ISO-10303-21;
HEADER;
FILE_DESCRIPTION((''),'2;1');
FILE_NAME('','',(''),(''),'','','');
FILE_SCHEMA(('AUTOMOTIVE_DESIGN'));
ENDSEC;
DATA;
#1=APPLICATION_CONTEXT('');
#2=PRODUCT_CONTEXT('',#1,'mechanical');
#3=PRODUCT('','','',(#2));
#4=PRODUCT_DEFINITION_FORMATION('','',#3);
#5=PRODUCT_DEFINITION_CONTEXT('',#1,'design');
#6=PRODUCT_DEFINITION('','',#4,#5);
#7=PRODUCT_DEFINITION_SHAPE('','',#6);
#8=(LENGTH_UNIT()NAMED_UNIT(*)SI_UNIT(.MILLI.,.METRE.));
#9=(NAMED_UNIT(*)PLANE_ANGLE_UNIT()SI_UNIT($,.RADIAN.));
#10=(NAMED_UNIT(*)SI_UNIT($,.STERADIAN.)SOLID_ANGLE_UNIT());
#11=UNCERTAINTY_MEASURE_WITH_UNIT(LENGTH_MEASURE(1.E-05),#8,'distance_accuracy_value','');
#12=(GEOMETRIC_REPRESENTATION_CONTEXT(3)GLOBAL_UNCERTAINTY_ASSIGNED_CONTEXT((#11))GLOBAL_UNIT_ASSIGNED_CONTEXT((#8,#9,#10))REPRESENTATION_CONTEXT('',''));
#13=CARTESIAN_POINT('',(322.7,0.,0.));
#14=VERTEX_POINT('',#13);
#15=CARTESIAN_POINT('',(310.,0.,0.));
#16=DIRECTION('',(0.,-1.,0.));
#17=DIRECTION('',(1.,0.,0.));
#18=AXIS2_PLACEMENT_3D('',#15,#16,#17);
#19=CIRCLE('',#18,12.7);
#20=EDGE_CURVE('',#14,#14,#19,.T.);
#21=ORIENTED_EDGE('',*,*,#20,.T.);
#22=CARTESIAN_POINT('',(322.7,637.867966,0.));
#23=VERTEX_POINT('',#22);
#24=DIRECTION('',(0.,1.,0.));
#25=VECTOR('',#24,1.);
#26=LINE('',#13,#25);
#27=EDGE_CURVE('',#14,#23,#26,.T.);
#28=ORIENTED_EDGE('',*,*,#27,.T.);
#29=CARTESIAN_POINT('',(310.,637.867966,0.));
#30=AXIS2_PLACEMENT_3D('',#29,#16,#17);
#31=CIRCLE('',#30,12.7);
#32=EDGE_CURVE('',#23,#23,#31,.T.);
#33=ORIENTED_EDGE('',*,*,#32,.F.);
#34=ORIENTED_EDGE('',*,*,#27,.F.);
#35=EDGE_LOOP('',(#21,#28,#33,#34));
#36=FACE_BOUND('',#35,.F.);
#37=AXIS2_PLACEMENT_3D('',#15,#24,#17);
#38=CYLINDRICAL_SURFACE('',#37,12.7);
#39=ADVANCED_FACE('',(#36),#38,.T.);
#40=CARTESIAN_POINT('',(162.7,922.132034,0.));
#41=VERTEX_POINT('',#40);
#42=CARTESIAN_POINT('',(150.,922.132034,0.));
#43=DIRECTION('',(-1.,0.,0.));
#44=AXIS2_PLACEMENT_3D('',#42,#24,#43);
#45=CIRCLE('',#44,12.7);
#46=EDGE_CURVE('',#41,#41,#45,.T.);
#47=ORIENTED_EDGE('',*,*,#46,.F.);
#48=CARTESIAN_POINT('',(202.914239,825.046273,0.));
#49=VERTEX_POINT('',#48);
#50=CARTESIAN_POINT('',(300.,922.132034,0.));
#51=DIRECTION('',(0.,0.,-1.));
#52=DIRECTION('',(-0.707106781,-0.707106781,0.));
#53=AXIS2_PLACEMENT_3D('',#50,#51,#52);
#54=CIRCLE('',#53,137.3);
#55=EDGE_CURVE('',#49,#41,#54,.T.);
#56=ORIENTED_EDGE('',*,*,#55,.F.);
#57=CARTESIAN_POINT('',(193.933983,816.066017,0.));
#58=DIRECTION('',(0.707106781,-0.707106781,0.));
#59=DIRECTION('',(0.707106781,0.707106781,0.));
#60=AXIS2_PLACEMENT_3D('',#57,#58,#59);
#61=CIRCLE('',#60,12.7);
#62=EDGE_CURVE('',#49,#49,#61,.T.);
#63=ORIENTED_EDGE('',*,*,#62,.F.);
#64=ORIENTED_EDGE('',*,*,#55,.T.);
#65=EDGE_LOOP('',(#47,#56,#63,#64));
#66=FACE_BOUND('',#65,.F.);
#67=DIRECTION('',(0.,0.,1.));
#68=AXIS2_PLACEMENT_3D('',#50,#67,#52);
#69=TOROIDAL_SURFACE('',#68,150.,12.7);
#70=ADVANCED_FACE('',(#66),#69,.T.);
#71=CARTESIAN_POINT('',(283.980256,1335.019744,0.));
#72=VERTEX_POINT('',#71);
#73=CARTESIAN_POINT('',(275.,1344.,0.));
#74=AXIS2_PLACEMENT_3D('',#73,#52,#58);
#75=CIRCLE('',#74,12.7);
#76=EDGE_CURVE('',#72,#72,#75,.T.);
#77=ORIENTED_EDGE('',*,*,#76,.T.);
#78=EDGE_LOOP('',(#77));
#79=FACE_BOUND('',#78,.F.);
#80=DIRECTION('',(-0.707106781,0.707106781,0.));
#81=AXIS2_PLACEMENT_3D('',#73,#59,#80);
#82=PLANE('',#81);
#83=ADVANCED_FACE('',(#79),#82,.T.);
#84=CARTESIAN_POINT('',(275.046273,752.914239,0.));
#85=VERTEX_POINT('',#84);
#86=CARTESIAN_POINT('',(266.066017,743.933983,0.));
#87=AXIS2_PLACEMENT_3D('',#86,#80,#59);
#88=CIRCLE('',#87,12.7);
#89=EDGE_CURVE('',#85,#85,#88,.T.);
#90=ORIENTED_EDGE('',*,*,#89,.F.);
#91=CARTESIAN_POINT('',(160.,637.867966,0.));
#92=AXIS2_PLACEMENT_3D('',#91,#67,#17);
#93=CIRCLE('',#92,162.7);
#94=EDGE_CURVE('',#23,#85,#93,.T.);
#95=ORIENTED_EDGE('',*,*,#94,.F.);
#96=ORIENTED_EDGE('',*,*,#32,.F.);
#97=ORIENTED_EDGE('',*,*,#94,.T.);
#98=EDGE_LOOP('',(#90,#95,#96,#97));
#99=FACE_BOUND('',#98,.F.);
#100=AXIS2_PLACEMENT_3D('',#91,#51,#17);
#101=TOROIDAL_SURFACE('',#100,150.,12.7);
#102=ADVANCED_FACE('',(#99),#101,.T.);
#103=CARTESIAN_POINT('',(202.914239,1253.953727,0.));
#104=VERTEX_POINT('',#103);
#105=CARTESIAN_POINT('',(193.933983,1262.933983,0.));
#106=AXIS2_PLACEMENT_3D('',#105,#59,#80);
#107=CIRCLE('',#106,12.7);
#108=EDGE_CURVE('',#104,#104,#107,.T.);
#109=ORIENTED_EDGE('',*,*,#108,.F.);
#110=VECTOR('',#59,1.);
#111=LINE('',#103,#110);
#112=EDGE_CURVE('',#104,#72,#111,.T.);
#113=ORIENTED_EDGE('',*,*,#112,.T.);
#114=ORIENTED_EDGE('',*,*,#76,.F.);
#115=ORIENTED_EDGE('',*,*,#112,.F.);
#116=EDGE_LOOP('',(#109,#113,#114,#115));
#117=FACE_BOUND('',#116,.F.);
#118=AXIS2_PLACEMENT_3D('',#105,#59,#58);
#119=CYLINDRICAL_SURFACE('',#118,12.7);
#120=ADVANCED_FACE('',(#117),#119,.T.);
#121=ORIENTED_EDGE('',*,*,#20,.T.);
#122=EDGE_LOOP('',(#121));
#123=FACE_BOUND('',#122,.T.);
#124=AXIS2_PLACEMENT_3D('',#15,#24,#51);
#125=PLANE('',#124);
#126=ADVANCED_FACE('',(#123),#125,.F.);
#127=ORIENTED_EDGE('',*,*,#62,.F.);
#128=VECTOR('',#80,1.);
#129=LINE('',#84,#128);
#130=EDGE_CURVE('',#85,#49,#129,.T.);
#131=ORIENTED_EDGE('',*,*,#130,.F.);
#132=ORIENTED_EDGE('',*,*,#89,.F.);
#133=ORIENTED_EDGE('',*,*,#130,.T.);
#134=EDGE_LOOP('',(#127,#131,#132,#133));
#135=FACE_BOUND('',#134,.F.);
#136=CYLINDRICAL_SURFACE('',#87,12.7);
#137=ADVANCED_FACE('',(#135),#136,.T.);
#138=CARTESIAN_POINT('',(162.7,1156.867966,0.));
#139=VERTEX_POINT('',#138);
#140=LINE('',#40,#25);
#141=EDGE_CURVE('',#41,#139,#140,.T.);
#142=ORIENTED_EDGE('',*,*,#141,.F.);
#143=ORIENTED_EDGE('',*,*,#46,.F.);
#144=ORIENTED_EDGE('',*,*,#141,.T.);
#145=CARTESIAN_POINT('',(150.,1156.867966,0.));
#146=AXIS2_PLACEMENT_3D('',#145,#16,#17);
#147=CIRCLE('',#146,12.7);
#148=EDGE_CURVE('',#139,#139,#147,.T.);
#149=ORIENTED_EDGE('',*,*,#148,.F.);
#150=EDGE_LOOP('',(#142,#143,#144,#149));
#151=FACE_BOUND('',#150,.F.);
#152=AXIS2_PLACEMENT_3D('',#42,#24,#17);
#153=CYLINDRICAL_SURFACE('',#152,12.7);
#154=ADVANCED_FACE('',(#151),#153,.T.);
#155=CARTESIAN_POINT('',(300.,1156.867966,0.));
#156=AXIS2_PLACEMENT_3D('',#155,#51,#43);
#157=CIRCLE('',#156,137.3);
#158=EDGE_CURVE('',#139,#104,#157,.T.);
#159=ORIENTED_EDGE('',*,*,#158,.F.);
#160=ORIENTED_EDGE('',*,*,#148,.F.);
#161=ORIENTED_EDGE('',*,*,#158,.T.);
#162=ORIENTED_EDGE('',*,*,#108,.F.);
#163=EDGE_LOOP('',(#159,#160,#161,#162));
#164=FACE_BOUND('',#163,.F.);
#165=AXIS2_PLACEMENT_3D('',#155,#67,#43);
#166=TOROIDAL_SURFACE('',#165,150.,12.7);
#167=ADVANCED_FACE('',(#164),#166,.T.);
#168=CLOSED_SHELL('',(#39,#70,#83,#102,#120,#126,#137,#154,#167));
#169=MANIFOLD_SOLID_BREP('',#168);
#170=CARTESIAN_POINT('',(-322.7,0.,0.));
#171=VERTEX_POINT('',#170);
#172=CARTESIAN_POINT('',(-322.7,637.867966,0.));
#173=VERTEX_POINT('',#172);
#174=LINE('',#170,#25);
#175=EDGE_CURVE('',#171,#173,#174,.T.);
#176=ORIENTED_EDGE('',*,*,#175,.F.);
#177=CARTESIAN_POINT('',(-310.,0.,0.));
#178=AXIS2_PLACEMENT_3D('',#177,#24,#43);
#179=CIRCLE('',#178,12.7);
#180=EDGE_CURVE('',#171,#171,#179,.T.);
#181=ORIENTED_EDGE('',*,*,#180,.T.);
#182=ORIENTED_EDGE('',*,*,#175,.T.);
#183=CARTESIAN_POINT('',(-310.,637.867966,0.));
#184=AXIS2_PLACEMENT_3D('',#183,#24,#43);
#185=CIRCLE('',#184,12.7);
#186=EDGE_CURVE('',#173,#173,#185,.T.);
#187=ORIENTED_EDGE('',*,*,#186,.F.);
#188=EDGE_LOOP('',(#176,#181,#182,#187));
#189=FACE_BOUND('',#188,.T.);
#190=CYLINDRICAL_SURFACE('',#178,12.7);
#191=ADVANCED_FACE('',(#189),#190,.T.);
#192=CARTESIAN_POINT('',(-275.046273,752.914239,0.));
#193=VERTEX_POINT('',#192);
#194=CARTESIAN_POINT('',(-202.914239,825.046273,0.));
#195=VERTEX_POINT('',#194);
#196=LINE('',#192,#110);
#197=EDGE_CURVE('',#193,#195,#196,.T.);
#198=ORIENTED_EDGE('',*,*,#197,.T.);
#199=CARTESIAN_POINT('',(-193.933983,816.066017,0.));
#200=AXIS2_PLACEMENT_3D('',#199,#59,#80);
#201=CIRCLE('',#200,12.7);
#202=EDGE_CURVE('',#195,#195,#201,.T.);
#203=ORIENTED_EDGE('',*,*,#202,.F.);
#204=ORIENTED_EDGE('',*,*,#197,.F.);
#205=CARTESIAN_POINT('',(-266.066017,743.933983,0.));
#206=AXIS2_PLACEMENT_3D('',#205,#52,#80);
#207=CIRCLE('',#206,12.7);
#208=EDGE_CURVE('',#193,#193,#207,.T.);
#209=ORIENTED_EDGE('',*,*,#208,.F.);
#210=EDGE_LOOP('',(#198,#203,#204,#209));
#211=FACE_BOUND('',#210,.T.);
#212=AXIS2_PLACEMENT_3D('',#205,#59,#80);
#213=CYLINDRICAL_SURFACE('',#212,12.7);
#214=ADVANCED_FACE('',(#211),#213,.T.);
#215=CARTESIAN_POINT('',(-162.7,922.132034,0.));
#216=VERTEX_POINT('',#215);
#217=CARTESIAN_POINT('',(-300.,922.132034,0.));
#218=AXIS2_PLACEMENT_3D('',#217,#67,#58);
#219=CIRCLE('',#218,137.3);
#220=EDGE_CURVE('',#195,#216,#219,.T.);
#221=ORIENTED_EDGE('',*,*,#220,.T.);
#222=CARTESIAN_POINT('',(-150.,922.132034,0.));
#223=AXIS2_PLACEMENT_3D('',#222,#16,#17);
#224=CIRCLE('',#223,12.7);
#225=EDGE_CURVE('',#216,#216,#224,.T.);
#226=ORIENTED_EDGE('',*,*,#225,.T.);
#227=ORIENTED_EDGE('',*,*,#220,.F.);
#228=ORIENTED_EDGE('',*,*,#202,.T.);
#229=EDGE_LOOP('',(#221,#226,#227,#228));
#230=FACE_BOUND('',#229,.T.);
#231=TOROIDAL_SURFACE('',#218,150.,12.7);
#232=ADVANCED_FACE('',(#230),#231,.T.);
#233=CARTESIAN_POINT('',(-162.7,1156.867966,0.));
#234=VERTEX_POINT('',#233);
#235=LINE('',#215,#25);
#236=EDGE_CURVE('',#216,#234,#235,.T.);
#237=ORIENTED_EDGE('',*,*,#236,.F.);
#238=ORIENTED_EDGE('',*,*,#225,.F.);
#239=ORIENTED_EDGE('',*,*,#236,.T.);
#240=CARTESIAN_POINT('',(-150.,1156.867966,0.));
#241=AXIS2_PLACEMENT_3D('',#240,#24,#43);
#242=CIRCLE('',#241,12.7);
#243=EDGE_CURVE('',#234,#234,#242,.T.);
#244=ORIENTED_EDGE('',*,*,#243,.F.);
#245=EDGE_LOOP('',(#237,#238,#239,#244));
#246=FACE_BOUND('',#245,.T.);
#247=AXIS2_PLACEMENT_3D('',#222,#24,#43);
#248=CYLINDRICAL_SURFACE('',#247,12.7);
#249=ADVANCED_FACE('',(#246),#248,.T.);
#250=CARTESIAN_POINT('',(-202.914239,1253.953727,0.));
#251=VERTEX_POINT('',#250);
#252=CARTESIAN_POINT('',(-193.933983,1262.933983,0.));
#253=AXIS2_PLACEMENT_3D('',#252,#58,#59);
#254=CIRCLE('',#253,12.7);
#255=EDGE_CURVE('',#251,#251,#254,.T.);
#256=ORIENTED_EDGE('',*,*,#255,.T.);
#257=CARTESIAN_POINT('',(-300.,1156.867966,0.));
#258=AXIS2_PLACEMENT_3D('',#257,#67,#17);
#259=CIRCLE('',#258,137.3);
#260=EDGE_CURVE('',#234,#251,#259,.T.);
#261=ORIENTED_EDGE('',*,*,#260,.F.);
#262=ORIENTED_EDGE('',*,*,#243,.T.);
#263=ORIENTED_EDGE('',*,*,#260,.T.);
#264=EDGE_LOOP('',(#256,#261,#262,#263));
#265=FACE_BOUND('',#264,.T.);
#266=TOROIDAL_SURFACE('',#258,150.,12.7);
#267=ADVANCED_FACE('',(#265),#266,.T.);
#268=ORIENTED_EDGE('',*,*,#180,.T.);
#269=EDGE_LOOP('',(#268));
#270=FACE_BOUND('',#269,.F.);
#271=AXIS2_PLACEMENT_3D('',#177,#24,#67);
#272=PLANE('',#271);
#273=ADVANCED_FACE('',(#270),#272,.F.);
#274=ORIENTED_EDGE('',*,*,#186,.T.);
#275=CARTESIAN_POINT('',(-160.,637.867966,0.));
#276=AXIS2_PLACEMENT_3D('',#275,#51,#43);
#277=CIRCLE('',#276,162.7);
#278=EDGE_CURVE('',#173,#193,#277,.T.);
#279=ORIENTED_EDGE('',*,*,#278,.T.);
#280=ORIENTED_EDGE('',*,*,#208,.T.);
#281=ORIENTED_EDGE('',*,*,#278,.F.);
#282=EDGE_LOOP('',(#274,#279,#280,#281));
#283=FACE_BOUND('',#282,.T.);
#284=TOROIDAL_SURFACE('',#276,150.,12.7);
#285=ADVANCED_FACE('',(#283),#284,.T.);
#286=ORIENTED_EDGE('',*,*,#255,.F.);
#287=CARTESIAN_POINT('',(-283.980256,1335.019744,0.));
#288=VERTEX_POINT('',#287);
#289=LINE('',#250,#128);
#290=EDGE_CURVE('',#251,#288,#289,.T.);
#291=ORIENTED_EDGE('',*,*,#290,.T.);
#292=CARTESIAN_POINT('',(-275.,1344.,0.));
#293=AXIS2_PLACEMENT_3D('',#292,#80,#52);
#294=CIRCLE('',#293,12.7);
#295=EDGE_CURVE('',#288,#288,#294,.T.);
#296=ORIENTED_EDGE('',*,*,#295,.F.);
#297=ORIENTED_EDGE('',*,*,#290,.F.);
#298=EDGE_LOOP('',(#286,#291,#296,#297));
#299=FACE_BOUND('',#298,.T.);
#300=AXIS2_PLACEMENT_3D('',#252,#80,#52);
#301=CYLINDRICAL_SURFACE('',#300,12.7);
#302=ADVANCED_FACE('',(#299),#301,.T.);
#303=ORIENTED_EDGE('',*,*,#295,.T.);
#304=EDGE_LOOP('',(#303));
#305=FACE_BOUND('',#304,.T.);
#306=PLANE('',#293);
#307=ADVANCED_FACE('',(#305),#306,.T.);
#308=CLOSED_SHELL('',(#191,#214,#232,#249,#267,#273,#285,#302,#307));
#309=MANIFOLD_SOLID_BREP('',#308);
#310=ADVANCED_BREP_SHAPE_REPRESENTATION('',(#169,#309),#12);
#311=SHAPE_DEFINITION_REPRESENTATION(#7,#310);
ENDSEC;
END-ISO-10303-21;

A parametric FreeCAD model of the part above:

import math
import FreeCAD as App
import Part
import Sketcher
from FreeCAD import Vector
Q = App.Units.Quantity

doc = App.newDocument("Part")
body = doc.addObject("PartDesign::Body", "Body")

# Sketch on XZ plane
sketch1 = doc.addObject("Sketcher::SketchObject", "Sketch")
body.addObject(sketch1)
sketch1.AttachmentSupport = (doc.XZ_Plane, [""])
sketch1.MapMode = "FlatFace"
sketch1.addGeometry(Part.Circle(Vector(-310, 0, 0), Vector(0, 0, 1), 13), False)
sketch1.addConstraint([
    Sketcher.Constraint("PointOnObject", 0, 3, -1),
    Sketcher.Constraint("Diameter", 0, Q("25.4 mm")),
    Sketcher.Constraint("DistanceX", 0, 3, -1, 1, Q("310 mm")),
])

# Sketch on XY plane
sketch2 = doc.addObject("Sketcher::SketchObject", "Sketch001")
body.addObject(sketch2)
sketch2.AttachmentSupport = (doc.XY_Plane, [""])
sketch2.MapMode = "FlatFace"
sketch2.addGeometry([
    Part.LineSegment(Vector(-310, 0, 0), Vector(-310, 638, 0)),  # 0
    Part.ArcOfCircle(Part.Circle(Vector(-160, 638, 0), Vector(0, 0, 1), 150), math.radians(135), math.radians(180)),  # 1
    Part.LineSegment(Vector(-266, 744, 0), Vector(-194, 816, 0)),  # 2
    Part.ArcOfCircle(Part.Circle(Vector(-300, 922, 0), Vector(0, 0, 1), 150), math.radians(-45), math.radians(0)),  # 3
    Part.LineSegment(Vector(-150, 922, 0), Vector(-150, 1157, 0)),  # 4
    Part.ArcOfCircle(Part.Circle(Vector(-300, 1157, 0), Vector(0, 0, 1), 150), math.radians(0), math.radians(45)),  # 5
    Part.LineSegment(Vector(-194, 1263, 0), Vector(-275, 1344, 0)),  # 6
], False)
sketch2.addConstraint([
    Sketcher.Constraint("Tangent", 0, 2, 1, 2),
    Sketcher.Constraint("Tangent", 1, 1, 2, 1),
    Sketcher.Constraint("Tangent", 2, 2, 3, 1),
    Sketcher.Constraint("Tangent", 3, 2, 4, 1),
    Sketcher.Constraint("Tangent", 4, 2, 5, 1),
    Sketcher.Constraint("Tangent", 5, 2, 6, 1),
    Sketcher.Constraint("Vertical", 0),
    Sketcher.Constraint("Vertical", 4),
    Sketcher.Constraint("Equal", 1, 3),
    Sketcher.Constraint("Equal", 3, 5),
    Sketcher.Constraint("PointOnObject", 0, 1, -1),
    Sketcher.Constraint("Perpendicular", 2, 6),
    Sketcher.Constraint("Vertical", 2, 2, 5, 2),
    Sketcher.Constraint("Radius", 1, Q("150 mm")),
    Sketcher.Constraint("DistanceX", 1, 3, -1, 1, Q("160 mm")),
    Sketcher.Constraint("DistanceX", 3, 3, -1, 1, Q("300 mm")),
    Sketcher.Constraint("DistanceX", 6, 2, -1, 1, Q("275 mm")),
    Sketcher.Constraint("DistanceY", -1, 1, 6, 2, Q("1344 mm")),
    Sketcher.Constraint("DistanceY", 1, 3, 5, 3, Q("519 mm")),
])
doc.recompute()

additivepipe = doc.addObject("PartDesign::AdditivePipe", "AdditivePipe")
body.addObject(additivepipe)
additivepipe.Profile = sketch1
additivepipe.Spine = (sketch2, ["Edge1", "Edge2", "Edge3", "Edge4", "Edge5", "Edge6", "Edge7"])
body2 = doc.addObject("PartDesign::Body", "Body001")
doc.recompute()

mirroring = doc.addObject("Part::Mirroring", "Mirroring")
mirroring.Source = body
mirroring.Base = Vector(0, 0, 0)
mirroring.Normal = Vector(1, 0, 0)
body2.BaseFeature = mirroring
doc.recompute()
mirroring.Visibility = False

doc.recompute()
